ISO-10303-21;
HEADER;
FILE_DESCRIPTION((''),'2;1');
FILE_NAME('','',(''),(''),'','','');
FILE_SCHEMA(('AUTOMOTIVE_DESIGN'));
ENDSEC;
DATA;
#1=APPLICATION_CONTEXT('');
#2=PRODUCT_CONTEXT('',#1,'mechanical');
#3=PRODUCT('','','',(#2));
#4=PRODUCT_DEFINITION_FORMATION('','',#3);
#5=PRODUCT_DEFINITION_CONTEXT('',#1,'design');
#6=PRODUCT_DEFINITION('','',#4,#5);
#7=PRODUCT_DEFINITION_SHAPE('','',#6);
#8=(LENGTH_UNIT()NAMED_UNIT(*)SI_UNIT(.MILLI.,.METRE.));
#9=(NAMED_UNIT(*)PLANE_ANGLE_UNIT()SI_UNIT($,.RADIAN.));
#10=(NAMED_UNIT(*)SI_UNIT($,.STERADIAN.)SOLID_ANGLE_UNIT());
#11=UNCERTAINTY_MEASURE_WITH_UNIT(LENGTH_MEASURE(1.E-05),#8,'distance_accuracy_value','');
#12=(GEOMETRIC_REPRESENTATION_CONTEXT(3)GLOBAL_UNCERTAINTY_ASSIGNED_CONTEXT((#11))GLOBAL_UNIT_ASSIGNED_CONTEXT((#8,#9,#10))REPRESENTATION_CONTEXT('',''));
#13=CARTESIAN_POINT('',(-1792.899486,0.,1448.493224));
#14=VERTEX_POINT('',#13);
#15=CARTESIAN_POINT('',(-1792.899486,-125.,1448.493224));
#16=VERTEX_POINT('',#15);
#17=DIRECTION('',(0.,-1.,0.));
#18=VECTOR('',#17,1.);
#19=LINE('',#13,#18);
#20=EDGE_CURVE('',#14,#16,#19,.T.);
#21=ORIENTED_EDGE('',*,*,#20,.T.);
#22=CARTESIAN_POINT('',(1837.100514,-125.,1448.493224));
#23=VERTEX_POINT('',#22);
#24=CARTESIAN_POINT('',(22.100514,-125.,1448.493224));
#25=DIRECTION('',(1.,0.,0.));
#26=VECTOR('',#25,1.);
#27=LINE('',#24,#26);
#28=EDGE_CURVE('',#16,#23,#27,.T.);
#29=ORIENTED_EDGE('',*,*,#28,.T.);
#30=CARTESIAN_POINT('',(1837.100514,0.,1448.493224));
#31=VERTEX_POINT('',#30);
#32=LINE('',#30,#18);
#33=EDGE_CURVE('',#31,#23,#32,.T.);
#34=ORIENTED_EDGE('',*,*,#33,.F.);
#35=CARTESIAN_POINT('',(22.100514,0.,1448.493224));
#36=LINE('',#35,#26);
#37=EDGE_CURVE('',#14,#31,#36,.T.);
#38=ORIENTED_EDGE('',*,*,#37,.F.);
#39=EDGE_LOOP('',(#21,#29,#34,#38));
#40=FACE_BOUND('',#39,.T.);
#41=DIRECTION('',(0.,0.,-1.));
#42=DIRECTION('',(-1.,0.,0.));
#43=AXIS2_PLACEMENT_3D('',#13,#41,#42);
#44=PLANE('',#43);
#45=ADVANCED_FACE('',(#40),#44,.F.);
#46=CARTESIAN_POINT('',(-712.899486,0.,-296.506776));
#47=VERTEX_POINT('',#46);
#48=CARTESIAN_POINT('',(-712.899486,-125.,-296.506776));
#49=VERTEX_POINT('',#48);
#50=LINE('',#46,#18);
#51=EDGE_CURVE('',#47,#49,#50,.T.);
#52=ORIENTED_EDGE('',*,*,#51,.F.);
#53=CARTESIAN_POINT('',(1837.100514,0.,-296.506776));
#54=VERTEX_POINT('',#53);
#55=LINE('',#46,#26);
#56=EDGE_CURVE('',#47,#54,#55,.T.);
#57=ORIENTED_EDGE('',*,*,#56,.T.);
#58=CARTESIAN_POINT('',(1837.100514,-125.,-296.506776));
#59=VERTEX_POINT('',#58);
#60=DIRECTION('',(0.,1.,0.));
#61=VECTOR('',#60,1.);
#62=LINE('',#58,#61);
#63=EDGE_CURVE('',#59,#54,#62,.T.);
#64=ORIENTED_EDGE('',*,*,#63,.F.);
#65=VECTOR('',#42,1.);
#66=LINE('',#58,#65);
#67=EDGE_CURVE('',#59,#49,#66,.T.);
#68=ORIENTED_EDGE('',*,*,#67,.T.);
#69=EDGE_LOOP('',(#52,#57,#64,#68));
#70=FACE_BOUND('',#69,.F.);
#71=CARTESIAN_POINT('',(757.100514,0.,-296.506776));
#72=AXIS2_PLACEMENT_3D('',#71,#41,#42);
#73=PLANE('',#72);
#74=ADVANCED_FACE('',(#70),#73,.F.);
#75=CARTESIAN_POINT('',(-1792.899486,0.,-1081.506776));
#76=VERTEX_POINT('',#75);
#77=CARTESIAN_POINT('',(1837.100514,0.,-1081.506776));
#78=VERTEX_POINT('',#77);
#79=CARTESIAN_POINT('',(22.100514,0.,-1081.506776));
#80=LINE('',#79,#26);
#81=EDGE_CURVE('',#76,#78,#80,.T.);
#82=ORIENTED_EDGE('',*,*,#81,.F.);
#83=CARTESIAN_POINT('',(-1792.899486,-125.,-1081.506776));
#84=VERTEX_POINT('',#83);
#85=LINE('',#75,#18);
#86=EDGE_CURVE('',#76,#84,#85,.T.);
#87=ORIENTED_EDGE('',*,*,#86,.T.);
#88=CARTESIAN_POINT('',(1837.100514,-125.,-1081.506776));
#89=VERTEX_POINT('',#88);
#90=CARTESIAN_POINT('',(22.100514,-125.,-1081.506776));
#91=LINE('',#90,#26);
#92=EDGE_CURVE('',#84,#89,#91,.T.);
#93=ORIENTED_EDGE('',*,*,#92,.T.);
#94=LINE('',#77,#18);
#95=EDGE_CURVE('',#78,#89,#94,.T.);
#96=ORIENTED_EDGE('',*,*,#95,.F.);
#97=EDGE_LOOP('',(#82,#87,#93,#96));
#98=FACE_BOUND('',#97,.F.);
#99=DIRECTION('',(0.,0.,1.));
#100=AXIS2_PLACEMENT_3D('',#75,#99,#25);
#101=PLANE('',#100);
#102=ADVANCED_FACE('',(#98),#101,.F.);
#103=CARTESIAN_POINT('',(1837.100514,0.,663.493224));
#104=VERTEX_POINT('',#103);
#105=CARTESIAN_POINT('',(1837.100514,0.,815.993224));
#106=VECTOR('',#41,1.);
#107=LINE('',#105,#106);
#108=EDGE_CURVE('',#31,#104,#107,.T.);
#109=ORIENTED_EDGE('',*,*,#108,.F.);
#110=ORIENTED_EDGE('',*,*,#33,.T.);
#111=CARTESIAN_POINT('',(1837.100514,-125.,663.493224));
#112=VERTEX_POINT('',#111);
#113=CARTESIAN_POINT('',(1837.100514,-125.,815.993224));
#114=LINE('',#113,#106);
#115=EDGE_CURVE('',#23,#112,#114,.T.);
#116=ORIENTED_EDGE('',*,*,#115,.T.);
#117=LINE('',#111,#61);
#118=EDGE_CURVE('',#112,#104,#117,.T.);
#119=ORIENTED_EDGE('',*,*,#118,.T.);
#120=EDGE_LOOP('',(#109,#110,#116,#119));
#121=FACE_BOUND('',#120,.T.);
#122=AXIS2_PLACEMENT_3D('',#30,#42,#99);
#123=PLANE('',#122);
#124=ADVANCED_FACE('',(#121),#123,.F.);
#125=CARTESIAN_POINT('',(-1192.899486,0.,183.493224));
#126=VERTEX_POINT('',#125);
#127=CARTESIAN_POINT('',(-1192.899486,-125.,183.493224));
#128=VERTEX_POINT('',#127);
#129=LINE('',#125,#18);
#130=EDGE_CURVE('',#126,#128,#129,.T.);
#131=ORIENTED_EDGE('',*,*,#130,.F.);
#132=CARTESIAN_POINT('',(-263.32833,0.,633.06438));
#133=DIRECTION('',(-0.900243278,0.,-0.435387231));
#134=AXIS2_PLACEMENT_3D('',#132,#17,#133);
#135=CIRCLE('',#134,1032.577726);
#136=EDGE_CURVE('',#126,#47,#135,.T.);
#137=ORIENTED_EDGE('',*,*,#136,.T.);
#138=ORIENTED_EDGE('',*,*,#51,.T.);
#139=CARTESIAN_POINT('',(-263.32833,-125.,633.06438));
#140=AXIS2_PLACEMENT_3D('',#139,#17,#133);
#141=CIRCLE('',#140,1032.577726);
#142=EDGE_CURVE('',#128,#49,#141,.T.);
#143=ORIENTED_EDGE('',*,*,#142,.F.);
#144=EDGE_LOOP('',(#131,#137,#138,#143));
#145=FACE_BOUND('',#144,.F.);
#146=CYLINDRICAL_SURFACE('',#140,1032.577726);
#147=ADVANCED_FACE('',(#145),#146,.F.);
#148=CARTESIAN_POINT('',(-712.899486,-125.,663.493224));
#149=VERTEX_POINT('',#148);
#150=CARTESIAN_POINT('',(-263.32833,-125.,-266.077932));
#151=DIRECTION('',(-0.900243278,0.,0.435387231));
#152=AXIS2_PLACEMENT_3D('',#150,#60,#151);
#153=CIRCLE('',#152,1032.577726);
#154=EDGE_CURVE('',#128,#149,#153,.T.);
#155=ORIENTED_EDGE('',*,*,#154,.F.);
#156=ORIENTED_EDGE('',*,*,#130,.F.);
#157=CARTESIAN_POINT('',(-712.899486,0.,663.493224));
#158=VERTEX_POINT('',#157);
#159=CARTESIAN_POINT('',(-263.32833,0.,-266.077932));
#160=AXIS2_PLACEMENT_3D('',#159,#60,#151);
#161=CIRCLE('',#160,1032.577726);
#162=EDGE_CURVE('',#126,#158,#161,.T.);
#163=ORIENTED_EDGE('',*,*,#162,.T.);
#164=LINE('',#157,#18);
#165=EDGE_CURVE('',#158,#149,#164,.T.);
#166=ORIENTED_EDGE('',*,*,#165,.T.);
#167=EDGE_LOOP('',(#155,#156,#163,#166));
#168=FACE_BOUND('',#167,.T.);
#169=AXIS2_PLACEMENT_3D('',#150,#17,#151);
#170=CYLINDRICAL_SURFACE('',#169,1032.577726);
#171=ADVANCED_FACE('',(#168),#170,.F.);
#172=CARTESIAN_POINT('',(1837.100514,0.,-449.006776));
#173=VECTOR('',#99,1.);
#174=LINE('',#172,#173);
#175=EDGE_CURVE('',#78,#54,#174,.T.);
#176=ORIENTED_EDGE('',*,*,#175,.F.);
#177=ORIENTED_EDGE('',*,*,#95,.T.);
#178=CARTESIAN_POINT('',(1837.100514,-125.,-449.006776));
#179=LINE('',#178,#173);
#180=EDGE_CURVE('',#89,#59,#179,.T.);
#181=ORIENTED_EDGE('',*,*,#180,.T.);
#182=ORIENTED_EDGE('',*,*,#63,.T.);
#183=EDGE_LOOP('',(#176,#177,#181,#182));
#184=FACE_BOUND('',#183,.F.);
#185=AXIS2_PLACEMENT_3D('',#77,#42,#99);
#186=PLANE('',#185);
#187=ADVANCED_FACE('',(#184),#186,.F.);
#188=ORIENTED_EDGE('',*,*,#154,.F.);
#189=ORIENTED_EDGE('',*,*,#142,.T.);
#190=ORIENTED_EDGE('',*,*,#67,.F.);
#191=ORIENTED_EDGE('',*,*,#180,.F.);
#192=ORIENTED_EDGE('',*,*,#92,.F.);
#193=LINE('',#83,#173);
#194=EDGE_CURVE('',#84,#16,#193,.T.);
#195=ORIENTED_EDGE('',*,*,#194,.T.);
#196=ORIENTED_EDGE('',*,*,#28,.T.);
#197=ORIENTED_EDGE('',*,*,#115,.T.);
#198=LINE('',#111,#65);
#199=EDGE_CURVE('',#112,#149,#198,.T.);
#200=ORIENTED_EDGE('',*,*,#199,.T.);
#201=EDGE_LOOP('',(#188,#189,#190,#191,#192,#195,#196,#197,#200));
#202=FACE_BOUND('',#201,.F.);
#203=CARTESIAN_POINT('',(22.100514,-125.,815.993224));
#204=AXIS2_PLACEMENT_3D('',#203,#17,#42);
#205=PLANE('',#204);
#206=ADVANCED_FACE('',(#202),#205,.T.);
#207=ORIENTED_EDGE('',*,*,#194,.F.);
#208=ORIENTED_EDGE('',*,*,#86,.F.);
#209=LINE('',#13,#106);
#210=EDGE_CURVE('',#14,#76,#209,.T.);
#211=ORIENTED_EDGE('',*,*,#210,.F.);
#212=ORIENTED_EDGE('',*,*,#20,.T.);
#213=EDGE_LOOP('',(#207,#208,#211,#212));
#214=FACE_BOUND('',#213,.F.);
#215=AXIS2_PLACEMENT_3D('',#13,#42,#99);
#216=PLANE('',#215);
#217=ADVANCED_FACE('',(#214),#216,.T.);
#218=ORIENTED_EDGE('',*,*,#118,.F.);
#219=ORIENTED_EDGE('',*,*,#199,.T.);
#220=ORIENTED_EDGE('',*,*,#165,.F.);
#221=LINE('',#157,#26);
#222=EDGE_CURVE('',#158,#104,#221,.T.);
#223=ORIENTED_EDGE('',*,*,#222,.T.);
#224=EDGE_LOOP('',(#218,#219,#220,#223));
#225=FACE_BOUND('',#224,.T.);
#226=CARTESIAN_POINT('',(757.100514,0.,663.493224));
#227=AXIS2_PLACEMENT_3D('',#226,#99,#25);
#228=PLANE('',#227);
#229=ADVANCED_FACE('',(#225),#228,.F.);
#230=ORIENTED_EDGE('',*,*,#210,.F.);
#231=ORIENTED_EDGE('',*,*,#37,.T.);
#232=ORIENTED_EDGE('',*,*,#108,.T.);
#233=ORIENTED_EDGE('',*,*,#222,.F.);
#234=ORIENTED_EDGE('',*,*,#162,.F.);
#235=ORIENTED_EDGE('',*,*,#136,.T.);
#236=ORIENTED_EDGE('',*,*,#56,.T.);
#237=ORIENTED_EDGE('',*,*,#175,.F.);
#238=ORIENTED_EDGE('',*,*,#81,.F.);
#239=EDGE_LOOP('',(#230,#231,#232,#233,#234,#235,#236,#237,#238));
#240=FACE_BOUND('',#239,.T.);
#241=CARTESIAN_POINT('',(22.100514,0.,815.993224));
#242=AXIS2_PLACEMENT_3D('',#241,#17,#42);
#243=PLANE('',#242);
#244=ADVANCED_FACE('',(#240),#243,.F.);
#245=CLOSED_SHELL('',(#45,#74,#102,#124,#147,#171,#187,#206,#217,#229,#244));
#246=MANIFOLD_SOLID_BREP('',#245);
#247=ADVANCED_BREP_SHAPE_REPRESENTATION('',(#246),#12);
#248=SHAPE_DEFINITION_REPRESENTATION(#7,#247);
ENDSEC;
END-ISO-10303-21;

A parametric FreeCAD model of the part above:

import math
import FreeCAD as App
import Part
import Sketcher
Q = App.Units.Quantity

doc = App.newDocument("Part")
body = doc.addObject("PartDesign::Body", "Body")

sketch1 = body.newObject("Sketcher::SketchObject", "Sketch")
sketch1.AttachmentSupport = (doc.getObject("XZ_Plane"), [""])
sketch1.MapMode = "FlatFace"
sketch1.addGeometry(Part.LineSegment(App.Vector(-1793, 183, 0), App.Vector(-1793, -1082, 0)), False)
sketch1.addGeometry(Part.LineSegment(App.Vector(-1793, -1082, 0), App.Vector(1837, -1082, 0)), False)
sketch1.addGeometry(Part.LineSegment(App.Vector(1837, -1082, 0), App.Vector(1837, 183, 0)), False)
sketch1.addGeometry(Part.LineSegment(App.Vector(1837, 183, 0), App.Vector(-1793, 183, 0)), False)
sketch1.addConstraint(Sketcher.Constraint("Coincident", 0, 2, 1, 1))
sketch1.addConstraint(Sketcher.Constraint("Coincident", 1, 2, 2, 1))
sketch1.addConstraint(Sketcher.Constraint("Coincident", 2, 2, 3, 1))
sketch1.addConstraint(Sketcher.Constraint("Coincident", 3, 2, 0, 1))
sketch1.addConstraint(Sketcher.Constraint("Vertical", 0))
sketch1.addConstraint(Sketcher.Constraint("Horizontal", 1))
sketch1.addConstraint(Sketcher.Constraint("Vertical", 2))
sketch1.addConstraint(Sketcher.Constraint("Horizontal", 3))
sketch1.addConstraint(Sketcher.Constraint("DistanceX", 1, 1, 1, 2, 3630.0))
sketch1.addConstraint(Sketcher.Constraint("DistanceY", 0, 2, 0, 1, 1265.0))
sketch1.addConstraint(Sketcher.Constraint("DistanceX", 0, 2, -1, 1, 1792.899486))
sketch1.addConstraint(Sketcher.Constraint("DistanceY", 0, 2, -1, 1, 1081.506776))
pad1 = body.newObject("PartDesign::Pad", "Pad")
pad1.Profile = sketch1
pad1.Length = 125

sketch2 = body.newObject("Sketcher::SketchObject", "Sketch001")
sketch2.AttachmentSupport = (doc.getObject("XZ_Plane"), [""])
sketch2.MapMode = "FlatFace"
sketch2.addGeometry(Part.LineSegment(App.Vector(-1193, 183, 0), App.Vector(1237, 183, 0)), False)
sketch2.addGeometry(Part.LineSegment(App.Vector(1237, 183, 0), App.Vector(757, -297, 0)), False)
sketch2.addGeometry(Part.LineSegment(App.Vector(757, -297, 0), App.Vector(-713, -297, 0)), False)
sketch2.addGeometry(Part.LineSegment(App.Vector(-713, -297, 0), App.Vector(-1193, 183, 0)), False)
sketch2.addConstraint(Sketcher.Constraint("Coincident", 0, 2, 1, 1))
sketch2.addConstraint(Sketcher.Constraint("Coincident", 1, 2, 2, 1))
sketch2.addConstraint(Sketcher.Constraint("Coincident", 2, 2, 3, 1))
sketch2.addConstraint(Sketcher.Constraint("Coincident", 3, 2, 0, 1))
sketch2.addConstraint(Sketcher.Constraint("Horizontal", 0))
sketch2.addConstraint(Sketcher.Constraint("Horizontal", 2))
sketch2.addConstraint(Sketcher.Constraint("Perpendicular", 1, 3))
sketch2.addConstraint(Sketcher.Constraint("Equal", 1, 3))
sketch2.addConstraint(Sketcher.Constraint("DistanceX", 0, 1, 0, 2, 2430.0))
sketch2.addConstraint(Sketcher.Constraint("DistanceX", 2, 2, 2, 1, 1470.0))
sketch2.addConstraint(Sketcher.Constraint("DistanceX", -1, 1, 0, 2, 1237.100514))
sketch2.addConstraint(Sketcher.Constraint("DistanceY", -1, 1, 0, 2, 183.493224))
pocket1 = body.newObject("PartDesign::Pocket", "Pocket")
pocket1.Profile = sketch2
pocket1.Type = "ThroughAll"
pocket1.Reversed = True

sketch3 = body.newObject("Sketcher::SketchObject", "Sketch002")
sketch3.AttachmentSupport = (doc.getObject("XZ_Plane"), [""])
sketch3.MapMode = "FlatFace"
sketch3.AttachmentOffset = App.Placement(App.Vector(0, 0, 125), App.Rotation())
sketch3.addGeometry(Part.LineSegment(App.Vector(1237, 183, 0), App.Vector(757, -297, 0)), False)
sketch3.addGeometry(Part.LineSegment(App.Vector(757, -297, 0), App.Vector(1837, -297, 0)), False)
sketch3.addGeometry(Part.LineSegment(App.Vector(1837, -297, 0), App.Vector(1837, 183, 0)), False)
sketch3.addGeometry(Part.LineSegment(App.Vector(1837, 183, 0), App.Vector(1237, 183, 0)), False)
sketch3.addConstraint(Sketcher.Constraint("Coincident", 0, 2, 1, 1))
sketch3.addConstraint(Sketcher.Constraint("Coincident", 1, 2, 2, 1))
sketch3.addConstraint(Sketcher.Constraint("Coincident", 2, 2, 3, 1))
sketch3.addConstraint(Sketcher.Constraint("Coincident", 3, 2, 0, 1))
sketch3.addConstraint(Sketcher.Constraint("Horizontal", 1))
sketch3.addConstraint(Sketcher.Constraint("Vertical", 2))
sketch3.addConstraint(Sketcher.Constraint("Horizontal", 3))
sketch3.addConstraint(Sketcher.Constraint("DistanceX", 1, 1, 1, 2, 1080.0))
sketch3.addConstraint(Sketcher.Constraint("DistanceX", 3, 2, 3, 1, 600.0))
sketch3.addConstraint(Sketcher.Constraint("DistanceY", 2, 1, 2, 2, 480.0))
sketch3.addConstraint(Sketcher.Constraint("DistanceX", -1, 1, 0, 2, 757.100514))
sketch3.addConstraint(Sketcher.Constraint("DistanceY", 0, 2, -1, 1, 296.506776))
pocket2 = body.newObject("PartDesign::Pocket", "Pocket001")
pocket2.Profile = sketch3
pocket2.Type = "ThroughAll"

sketch4 = body.newObject("Sketcher::SketchObject", "Sketch003")
sketch4.AttachmentSupport = (doc.getObject("XZ_Plane"), [""])
sketch4.MapMode = "FlatFace"
sketch4.AttachmentOffset = App.Placement(App.Vector(0, 0, 125), App.Rotation())
sketch4.addGeometry(Part.LineSegment(App.Vector(-713, -297, 0), App.Vector(-1193, 183, 0)), False)
sketch4.addGeometry(Part.ArcOfCircle(Part.Circle(App.Vector(-263, 633, 0), App.Vector(0, 0, 1), 1033), math.radians(-154), math.radians(-116)), False)
sketch4.addConstraint(Sketcher.Constraint("Coincident", 0, 1, 1, 2))
sketch4.addConstraint(Sketcher.Constraint("Coincident", 1, 1, 0, 2))
sketch4.addConstraint(Sketcher.Constraint("Angle", 0, Q("135 deg")))
sketch4.addConstraint(Sketcher.Constraint("DistanceX", 1, 1, 0, 1, 480.0))
sketch4.addConstraint(Sketcher.Constraint("Radius", 1, 1032.577726))
sketch4.addConstraint(Sketcher.Constraint("DistanceX", 1, 3, -1, 1, 263.32833))
sketch4.addConstraint(Sketcher.Constraint("DistanceY", -1, 1, 1, 3, 633.06438))
pocket3 = body.newObject("PartDesign::Pocket", "Pocket002")
pocket3.Profile = sketch4
pocket3.Type = "ThroughAll"
body2 = doc.addObject("PartDesign::Body", "Body001")
doc.recompute()

body2.BaseFeature = body
doc.recompute()

mirroring = doc.addObject("Part::Mirroring", "Mirroring")
mirroring.Source = body
mirroring.Base = App.Vector(-1492.899486, -62.5, 183.493224)
mirroring.Normal = App.Vector(0, 0, 1)
body3 = doc.addObject("PartDesign::Body", "Body002")
body3.BaseFeature = mirroring
boolean = body2.newObject("PartDesign::Boolean", "Boolean")
boolean.Type = "Fuse"
boolean.addObjects([body3])
doc.recompute()
mirroring.Visibility = False

doc.recompute()
